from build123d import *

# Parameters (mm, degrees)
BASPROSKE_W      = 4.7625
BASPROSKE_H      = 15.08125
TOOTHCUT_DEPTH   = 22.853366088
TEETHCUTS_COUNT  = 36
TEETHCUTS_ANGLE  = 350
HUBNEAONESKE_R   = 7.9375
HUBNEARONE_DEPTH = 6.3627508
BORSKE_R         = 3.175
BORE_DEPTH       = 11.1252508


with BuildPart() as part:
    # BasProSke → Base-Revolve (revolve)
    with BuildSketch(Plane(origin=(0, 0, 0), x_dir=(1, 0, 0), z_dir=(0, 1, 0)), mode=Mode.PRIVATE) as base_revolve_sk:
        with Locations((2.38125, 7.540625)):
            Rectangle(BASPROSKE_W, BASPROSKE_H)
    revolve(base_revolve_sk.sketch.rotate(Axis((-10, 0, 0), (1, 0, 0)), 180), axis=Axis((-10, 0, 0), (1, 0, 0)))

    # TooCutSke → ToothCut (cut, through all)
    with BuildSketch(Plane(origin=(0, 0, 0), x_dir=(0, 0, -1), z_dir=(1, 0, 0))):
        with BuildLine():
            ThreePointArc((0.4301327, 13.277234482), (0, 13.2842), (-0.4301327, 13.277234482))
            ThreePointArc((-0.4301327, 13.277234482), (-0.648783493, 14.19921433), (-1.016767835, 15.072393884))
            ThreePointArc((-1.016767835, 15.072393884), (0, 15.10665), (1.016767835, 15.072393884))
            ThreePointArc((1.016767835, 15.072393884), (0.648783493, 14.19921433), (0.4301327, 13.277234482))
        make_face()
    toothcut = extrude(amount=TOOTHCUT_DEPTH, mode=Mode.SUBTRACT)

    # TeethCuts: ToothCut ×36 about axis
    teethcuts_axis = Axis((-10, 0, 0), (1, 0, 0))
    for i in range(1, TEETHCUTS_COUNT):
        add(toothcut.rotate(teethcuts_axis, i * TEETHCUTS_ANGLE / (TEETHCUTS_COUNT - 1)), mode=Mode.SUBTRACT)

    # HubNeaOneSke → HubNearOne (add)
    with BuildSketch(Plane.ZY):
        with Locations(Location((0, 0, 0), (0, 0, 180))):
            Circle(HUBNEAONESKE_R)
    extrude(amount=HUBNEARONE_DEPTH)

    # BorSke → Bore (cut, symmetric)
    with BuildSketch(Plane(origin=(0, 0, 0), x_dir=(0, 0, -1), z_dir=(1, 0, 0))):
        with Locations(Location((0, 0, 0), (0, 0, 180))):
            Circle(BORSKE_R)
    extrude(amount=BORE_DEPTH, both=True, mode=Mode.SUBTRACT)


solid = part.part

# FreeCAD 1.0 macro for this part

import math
import FreeCAD as App
import Part
import Sketcher
Q = App.Units.Quantity


def add_polygon(sketch, points):
    """Adds a closed chain of lines whose ends are joined by coincident constraints."""
    first, n = sketch.GeometryCount, len(points)
    for a, b in zip(points, points[1:] + points[:1]):
        sketch.addGeometry(Part.LineSegment(App.Vector(*a, 0), App.Vector(*b, 0)), False)
    for i in range(n):
        sketch.addConstraint(Sketcher.Constraint("Coincident", first + i, 2, first + (i + 1) % n, 1))

doc = App.newDocument("Part")
body = doc.addObject("PartDesign::Body", "Body")

sketch1 = body.newObject("Sketcher::SketchObject", "Sketch")
sketch1.AttachmentSupport = (doc.getObject("XZ_Plane"), [""])
sketch1.MapMode = "FlatFace"
add_polygon(sketch1, [(0, -15.1), (0, 0), (4.8, 0), (4.8, -15.1)])
sketch1.addConstraint([
    Sketcher.Constraint("Vertical", 0),
    Sketcher.Constraint("Horizontal", 1),
    Sketcher.Constraint("Vertical", 2),
    Sketcher.Constraint("Horizontal", 3),
    Sketcher.Constraint("Coincident", 0, 2, -1, 1),
    Sketcher.Constraint("DistanceX", 1, 1, 1, 2, Q("0.1875 in")),
    Sketcher.Constraint("DistanceY", 0, 1, 0, 2, Q("0.59375 in")),
])
revolution = body.newObject("PartDesign::Revolution", "Revolution")
revolution.Profile = sketch1
revolution.ReferenceAxis = (sketch1, ["H_Axis"])
revolution.Angle = 360

sketch2 = body.newObject("Sketcher::SketchObject", "Sketch001")
sketch2.AttachmentSupport = (doc.getObject("YZ_Plane"), [""])
sketch2.MapMode = "FlatFace"
sketch2.addGeometry([
    Part.ArcOfCircle(Part.Circle(App.Vector(0, 0, 0), App.Vector(0, 0, 1), 13.3), math.radians(-1.86), math.radians(1.86)),
    Part.ArcOfCircle(Part.Circle(App.Vector(12.4, -6.1, 0), App.Vector(0, 0, 1), 5.7), math.radians(62.39), math.radians(81.41)),
    Part.ArcOfCircle(Part.Circle(App.Vector(0, 0, 0), App.Vector(0, 0, 1), 15.1), math.radians(-3.86), math.radians(3.86)),
    Part.ArcOfCircle(Part.Circle(App.Vector(12.4, 6.1, 0), App.Vector(0, 0, 1), 5.7), math.radians(-81.41), math.radians(-62.39)),
], False)
sketch2.addConstraint([
    Sketcher.Constraint("Coincident", 0, 1, 1, 2),
    Sketcher.Constraint("Coincident", 1, 1, 2, 1),
    Sketcher.Constraint("Coincident", 2, 2, 3, 2),
    Sketcher.Constraint("Coincident", 3, 1, 0, 2),
    Sketcher.Constraint("Coincident", 0, 3, -1, 1),
    Sketcher.Constraint("Coincident", 2, 3, -1, 1),
    Sketcher.Constraint("Equal", 1, 3),
    Sketcher.Constraint("Symmetric", 1, 3, 3, 3, -1),
    Sketcher.Constraint("Radius", 0, Q("0.523 in")),
    Sketcher.Constraint("Radius", 1, Q("0.225 in")),
    Sketcher.Constraint("Radius", 2, Q("15.10665 mm")),
    Sketcher.Constraint("DistanceY", 0, 1, 2, 2, Q("1.446901 mm")),
    Sketcher.Constraint("DistanceX", -1, 1, 1, 3, Q("12.424009 mm")),
])
pocket1 = body.newObject("PartDesign::Pocket", "Pocket")
pocket1.Profile = sketch2
pocket1.Type = "ThroughAll"
pocket1.Reversed = True
doc.recompute()

polarpattern = body.newObject("PartDesign::PolarPattern", "PolarPattern")
polarpattern.Originals = [pocket1]
polarpattern.Axis = (doc.getObject("X_Axis"), [""])
polarpattern.Angle = 360
polarpattern.Occurrences = 36
body.Tip = polarpattern

sketch3 = body.newObject("Sketcher::SketchObject", "Sketch002")
sketch3.AttachmentSupport = (doc.getObject("YZ_Plane"), [""])
sketch3.MapMode = "FlatFace"
sketch3.addGeometry(Part.Circle(App.Vector(0, 0, 0), App.Vector(0, 0, 1), 8), False)
sketch3.addConstraint([
    Sketcher.Constraint("Coincident", 0, 3, -1, 1),
    Sketcher.Constraint("Diameter", 0, Q("0.625 in")),
])
pad1 = body.newObject("PartDesign::Pad", "Pad")
pad1.Profile = sketch3
pad1.Length = 6.362751
pad1.Reversed = True

sketch4 = body.newObject("Sketcher::SketchObject", "Sketch003")
sketch4.AttachmentSupport = (doc.getObject("YZ_Plane"), [""])
sketch4.MapMode = "FlatFace"
sketch4.addGeometry(Part.Circle(App.Vector(0, 0, 0), App.Vector(0, 0, 1), 3.2), False)
sketch4.addConstraint([
    Sketcher.Constraint("Coincident", 0, 3, -1, 1),
    Sketcher.Constraint("Diameter", 0, Q("0.25 in")),
])
pocket2 = body.newObject("PartDesign::Pocket", "Pocket001")
pocket2.Profile = sketch4
pocket2.Length = 22.250502
pocket2.Midplane = True

doc.recompute()
